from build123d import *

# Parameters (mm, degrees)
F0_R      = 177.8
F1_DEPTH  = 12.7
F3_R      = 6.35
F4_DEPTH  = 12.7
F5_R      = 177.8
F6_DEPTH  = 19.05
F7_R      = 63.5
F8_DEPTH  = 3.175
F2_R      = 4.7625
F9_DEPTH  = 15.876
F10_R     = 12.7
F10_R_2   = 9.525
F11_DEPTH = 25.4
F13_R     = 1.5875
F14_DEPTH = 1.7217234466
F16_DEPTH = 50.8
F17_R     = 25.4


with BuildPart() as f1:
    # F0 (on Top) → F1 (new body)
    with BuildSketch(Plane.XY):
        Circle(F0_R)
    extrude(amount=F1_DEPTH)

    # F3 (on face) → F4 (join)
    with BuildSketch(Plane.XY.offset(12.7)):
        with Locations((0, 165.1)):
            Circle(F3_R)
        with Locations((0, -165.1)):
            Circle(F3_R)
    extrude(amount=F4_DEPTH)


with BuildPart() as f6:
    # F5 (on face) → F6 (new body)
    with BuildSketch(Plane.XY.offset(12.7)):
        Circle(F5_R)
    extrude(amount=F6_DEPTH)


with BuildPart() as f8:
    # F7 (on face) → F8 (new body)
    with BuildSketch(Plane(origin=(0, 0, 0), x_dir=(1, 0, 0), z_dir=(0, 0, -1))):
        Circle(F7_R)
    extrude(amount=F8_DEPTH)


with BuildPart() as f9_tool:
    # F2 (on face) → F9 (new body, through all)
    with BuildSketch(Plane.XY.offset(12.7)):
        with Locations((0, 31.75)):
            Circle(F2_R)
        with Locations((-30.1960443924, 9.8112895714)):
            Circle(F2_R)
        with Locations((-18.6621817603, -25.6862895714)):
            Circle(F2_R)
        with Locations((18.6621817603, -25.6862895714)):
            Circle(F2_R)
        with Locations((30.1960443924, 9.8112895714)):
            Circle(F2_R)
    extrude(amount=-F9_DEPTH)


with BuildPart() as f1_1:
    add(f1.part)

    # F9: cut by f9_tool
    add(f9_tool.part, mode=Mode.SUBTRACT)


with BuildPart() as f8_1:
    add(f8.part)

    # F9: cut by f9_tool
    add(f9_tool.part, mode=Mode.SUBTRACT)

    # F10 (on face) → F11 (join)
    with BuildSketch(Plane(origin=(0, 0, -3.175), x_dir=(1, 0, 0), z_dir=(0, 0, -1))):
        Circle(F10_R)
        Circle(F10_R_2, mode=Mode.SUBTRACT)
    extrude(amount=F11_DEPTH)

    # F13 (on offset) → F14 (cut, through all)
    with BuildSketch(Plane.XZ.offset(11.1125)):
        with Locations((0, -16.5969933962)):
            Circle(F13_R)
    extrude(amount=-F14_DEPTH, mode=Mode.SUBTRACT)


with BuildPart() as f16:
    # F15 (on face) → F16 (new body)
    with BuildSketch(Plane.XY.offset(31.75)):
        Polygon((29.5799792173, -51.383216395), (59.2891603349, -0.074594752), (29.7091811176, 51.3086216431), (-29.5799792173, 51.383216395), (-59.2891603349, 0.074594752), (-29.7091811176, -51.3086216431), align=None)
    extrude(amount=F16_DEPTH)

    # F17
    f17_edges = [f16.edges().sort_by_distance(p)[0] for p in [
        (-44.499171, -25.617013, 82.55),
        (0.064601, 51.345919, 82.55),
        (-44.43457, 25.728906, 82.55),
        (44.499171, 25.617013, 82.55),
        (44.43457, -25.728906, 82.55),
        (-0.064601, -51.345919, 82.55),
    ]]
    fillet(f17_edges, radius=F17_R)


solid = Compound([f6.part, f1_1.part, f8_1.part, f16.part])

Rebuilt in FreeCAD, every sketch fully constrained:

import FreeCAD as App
import Part
import Sketcher
Q = App.Units.Quantity


def edges_at(feature, points):
    """Names of the edges that pass closest to the given points."""
    edges = feature.Shape.Edges
    near = lambda p: min(range(len(edges)), key=lambda i: edges[i].distToShape(Part.Vertex(*p))[0])
    return sorted({f"Edge{near(p) + 1}" for p in points})

doc = App.newDocument("Part")
body = doc.addObject("PartDesign::Body", "Body")

sketch1 = body.newObject("Sketcher::SketchObject", "Sketch")
sketch1.AttachmentSupport = (doc.getObject("XY_Plane"), [""])
sketch1.MapMode = "FlatFace"
sketch1.addGeometry(Part.Circle(App.Vector(0, 0, 0), App.Vector(0, 0, 1), 178), False)
sketch1.addConstraint([
    Sketcher.Constraint("Coincident", 0, 3, -1, 1),
    Sketcher.Constraint("Diameter", 0, Q("14 in")),
])
pad1 = body.newObject("PartDesign::Pad", "Pad")
pad1.Profile = sketch1
pad1.Length = Q("0.5 in")

sketch2 = body.newObject("Sketcher::SketchObject", "Sketch001")
sketch2.AttachmentSupport = (doc.getObject("XY_Plane"), [""])
sketch2.MapMode = "FlatFace"
sketch2.AttachmentOffset = App.Placement(App.Vector(0, 0, 0.5 * 25.4), App.Rotation())
sketch2.addGeometry([
    Part.Circle(App.Vector(0, 165, 0), App.Vector(0, 0, 1), 6),
    Part.Circle(App.Vector(0, -165, 0), App.Vector(0, 0, 1), 6),
], False)
sketch2.addConstraint([
    Sketcher.Constraint("Equal", 0, 1),
    Sketcher.Constraint("Symmetric", 0, 3, 1, 3, -1, 1),
    Sketcher.Constraint("PointOnObject", 0, 3, -2),
    Sketcher.Constraint("Diameter", 0, Q("0.5 in")),
    Sketcher.Constraint("DistanceY", 1, 3, 0, 3, Q("13 in")),
])
pad2 = body.newObject("PartDesign::Pad", "Pad001")
pad2.Profile = sketch2
pad2.Length = Q("0.5 in")
body2 = doc.addObject("PartDesign::Body", "Body001")

sketch3 = body2.newObject("Sketcher::SketchObject", "Sketch002")
sketch3.AttachmentSupport = (doc.getObject("XY_Plane001"), [""])
sketch3.MapMode = "FlatFace"
sketch3.AttachmentOffset = App.Placement(App.Vector(0, 0, 0.5 * 25.4), App.Rotation())
sketch3.addGeometry(Part.Circle(App.Vector(0, 0, 0), App.Vector(0, 0, 1), 178), False)
sketch3.addConstraint([
    Sketcher.Constraint("Coincident", 0, 3, -1, 1),
    Sketcher.Constraint("Diameter", 0, Q("14 in")),
])
pad3 = body2.newObject("PartDesign::Pad", "Pad002")
pad3.Profile = sketch3
pad3.Length = Q("0.75 in")
body3 = doc.addObject("PartDesign::Body", "Body002")

sketch4 = body3.newObject("Sketcher::SketchObject", "Sketch003")
sketch4.AttachmentSupport = (doc.getObject("XY_Plane002"), [""])
sketch4.MapMode = "FlatFace"
sketch4.addGeometry(Part.Circle(App.Vector(0, 0, 0), App.Vector(0, 0, 1), 64), False)
sketch4.addConstraint([
    Sketcher.Constraint("Coincident", 0, 3, -1, 1),
    Sketcher.Constraint("Diameter", 0, Q("5 in")),
])
pad4 = body3.newObject("PartDesign::Pad", "Pad003")
pad4.Profile = sketch4
pad4.Length = Q("0.125 in")
pad4.Reversed = True
body4 = doc.addObject("PartDesign::Body", "Body003")
body4.AllowCompound = True

sketch5 = body4.newObject("Sketcher::SketchObject", "Sketch004")
sketch5.AttachmentSupport = (doc.getObject("XY_Plane003"), [""])
sketch5.MapMode = "FlatFace"
sketch5.AttachmentOffset = App.Placement(App.Vector(0, 0, 0.5 * 25.4), App.Rotation())
sketch5.addGeometry([
    Part.Circle(App.Vector(0, 31.8, 0), App.Vector(0, 0, 1), 4.8),
    Part.Circle(App.Vector(-30.2, 9.8, 0), App.Vector(0, 0, 1), 4.8),
    Part.Circle(App.Vector(-18.7, -25.7, 0), App.Vector(0, 0, 1), 4.8),
    Part.Circle(App.Vector(18.7, -25.7, 0), App.Vector(0, 0, 1), 4.8),
    Part.Circle(App.Vector(30.2, 9.8, 0), App.Vector(0, 0, 1), 4.8),
], False)
sketch5.addConstraint([
    Sketcher.Constraint("Equal", 0, 1),
    Sketcher.Constraint("Equal", 1, 2),
    Sketcher.Constraint("Equal", 2, 3),
    Sketcher.Constraint("Equal", 3, 4),
    Sketcher.Constraint("Symmetric", 2, 3, 3, 3, -2),
    Sketcher.Constraint("Symmetric", 1, 3, 4, 3, -2),
    Sketcher.Constraint("PointOnObject", 0, 3, -2),
    Sketcher.Constraint("Diameter", 0, Q("0.375 in")),
    Sketcher.Constraint("DistanceY", -1, 1, 0, 3, Q("1.25 in")),
    Sketcher.Constraint("DistanceY", -1, 1, 1, 3, Q("9.81129 mm")),
    Sketcher.Constraint("DistanceX", 2, 3, -1, 1, Q("18.662182 mm")),
    Sketcher.Constraint("DistanceY", 2, 3, -1, 1, Q("25.68629 mm")),
    Sketcher.Constraint("DistanceX", 1, 3, 4, 3, Q("60.392089 mm")),
])
pad5 = body4.newObject("PartDesign::Pad", "Pad004")
pad5.Profile = sketch5
pad5.Length = 15.876
pad5.Reversed = True
doc.recompute()

body5 = doc.addObject("PartDesign::Body", "Body004")
body5.BaseFeature = body4
boolean = body.newObject("PartDesign::Boolean", "Boolean")
boolean.Type = "Cut"
boolean.addObjects([body5])
doc.recompute()

boolean2 = body3.newObject("PartDesign::Boolean", "Boolean001")
boolean2.Type = "Cut"
boolean2.addObjects([body4])

sketch6 = body3.newObject("Sketcher::SketchObject", "Sketch005")
sketch6.AttachmentSupport = (doc.getObject("XY_Plane002"), [""])
sketch6.MapMode = "FlatFace"
sketch6.AttachmentOffset = App.Placement(App.Vector(0, 0, -0.125 * 25.4), App.Rotation())
sketch6.addGeometry([
    Part.Circle(App.Vector(0, 0, 0), App.Vector(0, 0, 1), 13),
    Part.Circle(App.Vector(0, 0, 0), App.Vector(0, 0, 1), 10),
], False)
sketch6.addConstraint([
    Sketcher.Constraint("Coincident", 0, 3, -1, 1),
    Sketcher.Constraint("Coincident", 1, 3, -1, 1),
    Sketcher.Constraint("Diameter", 0, Q("1 in")),
    Sketcher.Constraint("Diameter", 1, Q("0.75 in")),
])
pad6 = body3.newObject("PartDesign::Pad", "Pad005")
pad6.Profile = sketch6
pad6.Length = Q("1 in")
pad6.Reversed = True

sketch7 = body3.newObject("Sketcher::SketchObject", "Sketch006")
sketch7.AttachmentSupport = (doc.getObject("XZ_Plane002"), [""])
sketch7.MapMode = "FlatFace"
sketch7.AttachmentOffset = App.Placement(App.Vector(0, 0, 0.4375 * 25.4), App.Rotation())
sketch7.addGeometry(Part.Circle(App.Vector(0, -16.6, 0), App.Vector(0, 0, 1), 1.6), False)
sketch7.addConstraint([
    Sketcher.Constraint("PointOnObject", 0, 3, -2),
    Sketcher.Constraint("Diameter", 0, Q("0.125 in")),
    Sketcher.Constraint("DistanceY", 0, 3, -1, 1, Q("16.596993 mm")),
])
pocket1 = body3.newObject("PartDesign::Pocket", "Pocket")
pocket1.Profile = sketch7
pocket1.Length = 1.721723
body6 = doc.addObject("PartDesign::Body", "Body005")

sketch8 = body6.newObject("Sketcher::SketchObject", "Sketch007")
sketch8.AttachmentSupport = (doc.getObject("XY_Plane005"), [""])
sketch8.MapMode = "FlatFace"
sketch8.AttachmentOffset = App.Placement(App.Vector(0, 0, 1.25 * 25.4), App.Rotation())
sketch8.addGeometry([
    Part.LineSegment(App.Vector(30, -51, 0), App.Vector(59, 0, 0)),
    Part.LineSegment(App.Vector(59, 0, 0), App.Vector(30, 51, 0)),
    Part.LineSegment(App.Vector(30, 51, 0), App.Vector(-30, 51, 0)),
    Part.LineSegment(App.Vector(-30, 51, 0), App.Vector(-59, 0, 0)),
    Part.LineSegment(App.Vector(-59, 0, 0), App.Vector(-30, -51, 0)),
    Part.LineSegment(App.Vector(-30, -51, 0), App.Vector(30, -51, 0)),
], False)
sketch8.addConstraint([
    Sketcher.Constraint("Coincident", 0, 2, 1, 1),
    Sketcher.Constraint("Coincident", 1, 2, 2, 1),
    Sketcher.Constraint("Coincident", 2, 2, 3, 1),
    Sketcher.Constraint("Coincident", 3, 2, 4, 1),
    Sketcher.Constraint("Coincident", 4, 2, 5, 1),
    Sketcher.Constraint("Coincident", 5, 2, 0, 1),
    Sketcher.Constraint("Symmetric", 0, 2, 3, 2, -1, 1),
    Sketcher.Constraint("Symmetric", 1, 2, 4, 2, -1, 1),
    Sketcher.Constraint("Symmetric", 2, 2, 5, 2, -1, 1),
    Sketcher.Constraint("Equal", 0, 1),
    Sketcher.Constraint("Equal", 1, 2),
    Sketcher.Constraint("DistanceX", 4, 2, 2, 2, Q("0.129202 mm")),
    Sketcher.Constraint("DistanceX", -1, 1, 0, 2, Q("59.28916 mm")),
    Sketcher.Constraint("DistanceX", -1, 1, 1, 2, Q("29.709181 mm")),
    Sketcher.Constraint("DistanceY", -1, 1, 1, 2, Q("51.308622 mm")),
])
pad7 = body6.newObject("PartDesign::Pad", "Pad006")
pad7.Profile = sketch8
pad7.Length = Q("2 in")
doc.recompute()

fillet = body6.newObject("PartDesign::Fillet", "Fillet")
fillet.Base = (pad7, edges_at(pad7, [
    (-44.499, -25.617, 82.55),
    (0.065, 51.346, 82.55),
    (-44.435, 25.729, 82.55),
    (44.499, 25.617, 82.55),
    (44.435, -25.729, 82.55),
    (-0.065, -51.346, 82.55),
]))
fillet.Radius = Q("1 in")

doc.recompute()
